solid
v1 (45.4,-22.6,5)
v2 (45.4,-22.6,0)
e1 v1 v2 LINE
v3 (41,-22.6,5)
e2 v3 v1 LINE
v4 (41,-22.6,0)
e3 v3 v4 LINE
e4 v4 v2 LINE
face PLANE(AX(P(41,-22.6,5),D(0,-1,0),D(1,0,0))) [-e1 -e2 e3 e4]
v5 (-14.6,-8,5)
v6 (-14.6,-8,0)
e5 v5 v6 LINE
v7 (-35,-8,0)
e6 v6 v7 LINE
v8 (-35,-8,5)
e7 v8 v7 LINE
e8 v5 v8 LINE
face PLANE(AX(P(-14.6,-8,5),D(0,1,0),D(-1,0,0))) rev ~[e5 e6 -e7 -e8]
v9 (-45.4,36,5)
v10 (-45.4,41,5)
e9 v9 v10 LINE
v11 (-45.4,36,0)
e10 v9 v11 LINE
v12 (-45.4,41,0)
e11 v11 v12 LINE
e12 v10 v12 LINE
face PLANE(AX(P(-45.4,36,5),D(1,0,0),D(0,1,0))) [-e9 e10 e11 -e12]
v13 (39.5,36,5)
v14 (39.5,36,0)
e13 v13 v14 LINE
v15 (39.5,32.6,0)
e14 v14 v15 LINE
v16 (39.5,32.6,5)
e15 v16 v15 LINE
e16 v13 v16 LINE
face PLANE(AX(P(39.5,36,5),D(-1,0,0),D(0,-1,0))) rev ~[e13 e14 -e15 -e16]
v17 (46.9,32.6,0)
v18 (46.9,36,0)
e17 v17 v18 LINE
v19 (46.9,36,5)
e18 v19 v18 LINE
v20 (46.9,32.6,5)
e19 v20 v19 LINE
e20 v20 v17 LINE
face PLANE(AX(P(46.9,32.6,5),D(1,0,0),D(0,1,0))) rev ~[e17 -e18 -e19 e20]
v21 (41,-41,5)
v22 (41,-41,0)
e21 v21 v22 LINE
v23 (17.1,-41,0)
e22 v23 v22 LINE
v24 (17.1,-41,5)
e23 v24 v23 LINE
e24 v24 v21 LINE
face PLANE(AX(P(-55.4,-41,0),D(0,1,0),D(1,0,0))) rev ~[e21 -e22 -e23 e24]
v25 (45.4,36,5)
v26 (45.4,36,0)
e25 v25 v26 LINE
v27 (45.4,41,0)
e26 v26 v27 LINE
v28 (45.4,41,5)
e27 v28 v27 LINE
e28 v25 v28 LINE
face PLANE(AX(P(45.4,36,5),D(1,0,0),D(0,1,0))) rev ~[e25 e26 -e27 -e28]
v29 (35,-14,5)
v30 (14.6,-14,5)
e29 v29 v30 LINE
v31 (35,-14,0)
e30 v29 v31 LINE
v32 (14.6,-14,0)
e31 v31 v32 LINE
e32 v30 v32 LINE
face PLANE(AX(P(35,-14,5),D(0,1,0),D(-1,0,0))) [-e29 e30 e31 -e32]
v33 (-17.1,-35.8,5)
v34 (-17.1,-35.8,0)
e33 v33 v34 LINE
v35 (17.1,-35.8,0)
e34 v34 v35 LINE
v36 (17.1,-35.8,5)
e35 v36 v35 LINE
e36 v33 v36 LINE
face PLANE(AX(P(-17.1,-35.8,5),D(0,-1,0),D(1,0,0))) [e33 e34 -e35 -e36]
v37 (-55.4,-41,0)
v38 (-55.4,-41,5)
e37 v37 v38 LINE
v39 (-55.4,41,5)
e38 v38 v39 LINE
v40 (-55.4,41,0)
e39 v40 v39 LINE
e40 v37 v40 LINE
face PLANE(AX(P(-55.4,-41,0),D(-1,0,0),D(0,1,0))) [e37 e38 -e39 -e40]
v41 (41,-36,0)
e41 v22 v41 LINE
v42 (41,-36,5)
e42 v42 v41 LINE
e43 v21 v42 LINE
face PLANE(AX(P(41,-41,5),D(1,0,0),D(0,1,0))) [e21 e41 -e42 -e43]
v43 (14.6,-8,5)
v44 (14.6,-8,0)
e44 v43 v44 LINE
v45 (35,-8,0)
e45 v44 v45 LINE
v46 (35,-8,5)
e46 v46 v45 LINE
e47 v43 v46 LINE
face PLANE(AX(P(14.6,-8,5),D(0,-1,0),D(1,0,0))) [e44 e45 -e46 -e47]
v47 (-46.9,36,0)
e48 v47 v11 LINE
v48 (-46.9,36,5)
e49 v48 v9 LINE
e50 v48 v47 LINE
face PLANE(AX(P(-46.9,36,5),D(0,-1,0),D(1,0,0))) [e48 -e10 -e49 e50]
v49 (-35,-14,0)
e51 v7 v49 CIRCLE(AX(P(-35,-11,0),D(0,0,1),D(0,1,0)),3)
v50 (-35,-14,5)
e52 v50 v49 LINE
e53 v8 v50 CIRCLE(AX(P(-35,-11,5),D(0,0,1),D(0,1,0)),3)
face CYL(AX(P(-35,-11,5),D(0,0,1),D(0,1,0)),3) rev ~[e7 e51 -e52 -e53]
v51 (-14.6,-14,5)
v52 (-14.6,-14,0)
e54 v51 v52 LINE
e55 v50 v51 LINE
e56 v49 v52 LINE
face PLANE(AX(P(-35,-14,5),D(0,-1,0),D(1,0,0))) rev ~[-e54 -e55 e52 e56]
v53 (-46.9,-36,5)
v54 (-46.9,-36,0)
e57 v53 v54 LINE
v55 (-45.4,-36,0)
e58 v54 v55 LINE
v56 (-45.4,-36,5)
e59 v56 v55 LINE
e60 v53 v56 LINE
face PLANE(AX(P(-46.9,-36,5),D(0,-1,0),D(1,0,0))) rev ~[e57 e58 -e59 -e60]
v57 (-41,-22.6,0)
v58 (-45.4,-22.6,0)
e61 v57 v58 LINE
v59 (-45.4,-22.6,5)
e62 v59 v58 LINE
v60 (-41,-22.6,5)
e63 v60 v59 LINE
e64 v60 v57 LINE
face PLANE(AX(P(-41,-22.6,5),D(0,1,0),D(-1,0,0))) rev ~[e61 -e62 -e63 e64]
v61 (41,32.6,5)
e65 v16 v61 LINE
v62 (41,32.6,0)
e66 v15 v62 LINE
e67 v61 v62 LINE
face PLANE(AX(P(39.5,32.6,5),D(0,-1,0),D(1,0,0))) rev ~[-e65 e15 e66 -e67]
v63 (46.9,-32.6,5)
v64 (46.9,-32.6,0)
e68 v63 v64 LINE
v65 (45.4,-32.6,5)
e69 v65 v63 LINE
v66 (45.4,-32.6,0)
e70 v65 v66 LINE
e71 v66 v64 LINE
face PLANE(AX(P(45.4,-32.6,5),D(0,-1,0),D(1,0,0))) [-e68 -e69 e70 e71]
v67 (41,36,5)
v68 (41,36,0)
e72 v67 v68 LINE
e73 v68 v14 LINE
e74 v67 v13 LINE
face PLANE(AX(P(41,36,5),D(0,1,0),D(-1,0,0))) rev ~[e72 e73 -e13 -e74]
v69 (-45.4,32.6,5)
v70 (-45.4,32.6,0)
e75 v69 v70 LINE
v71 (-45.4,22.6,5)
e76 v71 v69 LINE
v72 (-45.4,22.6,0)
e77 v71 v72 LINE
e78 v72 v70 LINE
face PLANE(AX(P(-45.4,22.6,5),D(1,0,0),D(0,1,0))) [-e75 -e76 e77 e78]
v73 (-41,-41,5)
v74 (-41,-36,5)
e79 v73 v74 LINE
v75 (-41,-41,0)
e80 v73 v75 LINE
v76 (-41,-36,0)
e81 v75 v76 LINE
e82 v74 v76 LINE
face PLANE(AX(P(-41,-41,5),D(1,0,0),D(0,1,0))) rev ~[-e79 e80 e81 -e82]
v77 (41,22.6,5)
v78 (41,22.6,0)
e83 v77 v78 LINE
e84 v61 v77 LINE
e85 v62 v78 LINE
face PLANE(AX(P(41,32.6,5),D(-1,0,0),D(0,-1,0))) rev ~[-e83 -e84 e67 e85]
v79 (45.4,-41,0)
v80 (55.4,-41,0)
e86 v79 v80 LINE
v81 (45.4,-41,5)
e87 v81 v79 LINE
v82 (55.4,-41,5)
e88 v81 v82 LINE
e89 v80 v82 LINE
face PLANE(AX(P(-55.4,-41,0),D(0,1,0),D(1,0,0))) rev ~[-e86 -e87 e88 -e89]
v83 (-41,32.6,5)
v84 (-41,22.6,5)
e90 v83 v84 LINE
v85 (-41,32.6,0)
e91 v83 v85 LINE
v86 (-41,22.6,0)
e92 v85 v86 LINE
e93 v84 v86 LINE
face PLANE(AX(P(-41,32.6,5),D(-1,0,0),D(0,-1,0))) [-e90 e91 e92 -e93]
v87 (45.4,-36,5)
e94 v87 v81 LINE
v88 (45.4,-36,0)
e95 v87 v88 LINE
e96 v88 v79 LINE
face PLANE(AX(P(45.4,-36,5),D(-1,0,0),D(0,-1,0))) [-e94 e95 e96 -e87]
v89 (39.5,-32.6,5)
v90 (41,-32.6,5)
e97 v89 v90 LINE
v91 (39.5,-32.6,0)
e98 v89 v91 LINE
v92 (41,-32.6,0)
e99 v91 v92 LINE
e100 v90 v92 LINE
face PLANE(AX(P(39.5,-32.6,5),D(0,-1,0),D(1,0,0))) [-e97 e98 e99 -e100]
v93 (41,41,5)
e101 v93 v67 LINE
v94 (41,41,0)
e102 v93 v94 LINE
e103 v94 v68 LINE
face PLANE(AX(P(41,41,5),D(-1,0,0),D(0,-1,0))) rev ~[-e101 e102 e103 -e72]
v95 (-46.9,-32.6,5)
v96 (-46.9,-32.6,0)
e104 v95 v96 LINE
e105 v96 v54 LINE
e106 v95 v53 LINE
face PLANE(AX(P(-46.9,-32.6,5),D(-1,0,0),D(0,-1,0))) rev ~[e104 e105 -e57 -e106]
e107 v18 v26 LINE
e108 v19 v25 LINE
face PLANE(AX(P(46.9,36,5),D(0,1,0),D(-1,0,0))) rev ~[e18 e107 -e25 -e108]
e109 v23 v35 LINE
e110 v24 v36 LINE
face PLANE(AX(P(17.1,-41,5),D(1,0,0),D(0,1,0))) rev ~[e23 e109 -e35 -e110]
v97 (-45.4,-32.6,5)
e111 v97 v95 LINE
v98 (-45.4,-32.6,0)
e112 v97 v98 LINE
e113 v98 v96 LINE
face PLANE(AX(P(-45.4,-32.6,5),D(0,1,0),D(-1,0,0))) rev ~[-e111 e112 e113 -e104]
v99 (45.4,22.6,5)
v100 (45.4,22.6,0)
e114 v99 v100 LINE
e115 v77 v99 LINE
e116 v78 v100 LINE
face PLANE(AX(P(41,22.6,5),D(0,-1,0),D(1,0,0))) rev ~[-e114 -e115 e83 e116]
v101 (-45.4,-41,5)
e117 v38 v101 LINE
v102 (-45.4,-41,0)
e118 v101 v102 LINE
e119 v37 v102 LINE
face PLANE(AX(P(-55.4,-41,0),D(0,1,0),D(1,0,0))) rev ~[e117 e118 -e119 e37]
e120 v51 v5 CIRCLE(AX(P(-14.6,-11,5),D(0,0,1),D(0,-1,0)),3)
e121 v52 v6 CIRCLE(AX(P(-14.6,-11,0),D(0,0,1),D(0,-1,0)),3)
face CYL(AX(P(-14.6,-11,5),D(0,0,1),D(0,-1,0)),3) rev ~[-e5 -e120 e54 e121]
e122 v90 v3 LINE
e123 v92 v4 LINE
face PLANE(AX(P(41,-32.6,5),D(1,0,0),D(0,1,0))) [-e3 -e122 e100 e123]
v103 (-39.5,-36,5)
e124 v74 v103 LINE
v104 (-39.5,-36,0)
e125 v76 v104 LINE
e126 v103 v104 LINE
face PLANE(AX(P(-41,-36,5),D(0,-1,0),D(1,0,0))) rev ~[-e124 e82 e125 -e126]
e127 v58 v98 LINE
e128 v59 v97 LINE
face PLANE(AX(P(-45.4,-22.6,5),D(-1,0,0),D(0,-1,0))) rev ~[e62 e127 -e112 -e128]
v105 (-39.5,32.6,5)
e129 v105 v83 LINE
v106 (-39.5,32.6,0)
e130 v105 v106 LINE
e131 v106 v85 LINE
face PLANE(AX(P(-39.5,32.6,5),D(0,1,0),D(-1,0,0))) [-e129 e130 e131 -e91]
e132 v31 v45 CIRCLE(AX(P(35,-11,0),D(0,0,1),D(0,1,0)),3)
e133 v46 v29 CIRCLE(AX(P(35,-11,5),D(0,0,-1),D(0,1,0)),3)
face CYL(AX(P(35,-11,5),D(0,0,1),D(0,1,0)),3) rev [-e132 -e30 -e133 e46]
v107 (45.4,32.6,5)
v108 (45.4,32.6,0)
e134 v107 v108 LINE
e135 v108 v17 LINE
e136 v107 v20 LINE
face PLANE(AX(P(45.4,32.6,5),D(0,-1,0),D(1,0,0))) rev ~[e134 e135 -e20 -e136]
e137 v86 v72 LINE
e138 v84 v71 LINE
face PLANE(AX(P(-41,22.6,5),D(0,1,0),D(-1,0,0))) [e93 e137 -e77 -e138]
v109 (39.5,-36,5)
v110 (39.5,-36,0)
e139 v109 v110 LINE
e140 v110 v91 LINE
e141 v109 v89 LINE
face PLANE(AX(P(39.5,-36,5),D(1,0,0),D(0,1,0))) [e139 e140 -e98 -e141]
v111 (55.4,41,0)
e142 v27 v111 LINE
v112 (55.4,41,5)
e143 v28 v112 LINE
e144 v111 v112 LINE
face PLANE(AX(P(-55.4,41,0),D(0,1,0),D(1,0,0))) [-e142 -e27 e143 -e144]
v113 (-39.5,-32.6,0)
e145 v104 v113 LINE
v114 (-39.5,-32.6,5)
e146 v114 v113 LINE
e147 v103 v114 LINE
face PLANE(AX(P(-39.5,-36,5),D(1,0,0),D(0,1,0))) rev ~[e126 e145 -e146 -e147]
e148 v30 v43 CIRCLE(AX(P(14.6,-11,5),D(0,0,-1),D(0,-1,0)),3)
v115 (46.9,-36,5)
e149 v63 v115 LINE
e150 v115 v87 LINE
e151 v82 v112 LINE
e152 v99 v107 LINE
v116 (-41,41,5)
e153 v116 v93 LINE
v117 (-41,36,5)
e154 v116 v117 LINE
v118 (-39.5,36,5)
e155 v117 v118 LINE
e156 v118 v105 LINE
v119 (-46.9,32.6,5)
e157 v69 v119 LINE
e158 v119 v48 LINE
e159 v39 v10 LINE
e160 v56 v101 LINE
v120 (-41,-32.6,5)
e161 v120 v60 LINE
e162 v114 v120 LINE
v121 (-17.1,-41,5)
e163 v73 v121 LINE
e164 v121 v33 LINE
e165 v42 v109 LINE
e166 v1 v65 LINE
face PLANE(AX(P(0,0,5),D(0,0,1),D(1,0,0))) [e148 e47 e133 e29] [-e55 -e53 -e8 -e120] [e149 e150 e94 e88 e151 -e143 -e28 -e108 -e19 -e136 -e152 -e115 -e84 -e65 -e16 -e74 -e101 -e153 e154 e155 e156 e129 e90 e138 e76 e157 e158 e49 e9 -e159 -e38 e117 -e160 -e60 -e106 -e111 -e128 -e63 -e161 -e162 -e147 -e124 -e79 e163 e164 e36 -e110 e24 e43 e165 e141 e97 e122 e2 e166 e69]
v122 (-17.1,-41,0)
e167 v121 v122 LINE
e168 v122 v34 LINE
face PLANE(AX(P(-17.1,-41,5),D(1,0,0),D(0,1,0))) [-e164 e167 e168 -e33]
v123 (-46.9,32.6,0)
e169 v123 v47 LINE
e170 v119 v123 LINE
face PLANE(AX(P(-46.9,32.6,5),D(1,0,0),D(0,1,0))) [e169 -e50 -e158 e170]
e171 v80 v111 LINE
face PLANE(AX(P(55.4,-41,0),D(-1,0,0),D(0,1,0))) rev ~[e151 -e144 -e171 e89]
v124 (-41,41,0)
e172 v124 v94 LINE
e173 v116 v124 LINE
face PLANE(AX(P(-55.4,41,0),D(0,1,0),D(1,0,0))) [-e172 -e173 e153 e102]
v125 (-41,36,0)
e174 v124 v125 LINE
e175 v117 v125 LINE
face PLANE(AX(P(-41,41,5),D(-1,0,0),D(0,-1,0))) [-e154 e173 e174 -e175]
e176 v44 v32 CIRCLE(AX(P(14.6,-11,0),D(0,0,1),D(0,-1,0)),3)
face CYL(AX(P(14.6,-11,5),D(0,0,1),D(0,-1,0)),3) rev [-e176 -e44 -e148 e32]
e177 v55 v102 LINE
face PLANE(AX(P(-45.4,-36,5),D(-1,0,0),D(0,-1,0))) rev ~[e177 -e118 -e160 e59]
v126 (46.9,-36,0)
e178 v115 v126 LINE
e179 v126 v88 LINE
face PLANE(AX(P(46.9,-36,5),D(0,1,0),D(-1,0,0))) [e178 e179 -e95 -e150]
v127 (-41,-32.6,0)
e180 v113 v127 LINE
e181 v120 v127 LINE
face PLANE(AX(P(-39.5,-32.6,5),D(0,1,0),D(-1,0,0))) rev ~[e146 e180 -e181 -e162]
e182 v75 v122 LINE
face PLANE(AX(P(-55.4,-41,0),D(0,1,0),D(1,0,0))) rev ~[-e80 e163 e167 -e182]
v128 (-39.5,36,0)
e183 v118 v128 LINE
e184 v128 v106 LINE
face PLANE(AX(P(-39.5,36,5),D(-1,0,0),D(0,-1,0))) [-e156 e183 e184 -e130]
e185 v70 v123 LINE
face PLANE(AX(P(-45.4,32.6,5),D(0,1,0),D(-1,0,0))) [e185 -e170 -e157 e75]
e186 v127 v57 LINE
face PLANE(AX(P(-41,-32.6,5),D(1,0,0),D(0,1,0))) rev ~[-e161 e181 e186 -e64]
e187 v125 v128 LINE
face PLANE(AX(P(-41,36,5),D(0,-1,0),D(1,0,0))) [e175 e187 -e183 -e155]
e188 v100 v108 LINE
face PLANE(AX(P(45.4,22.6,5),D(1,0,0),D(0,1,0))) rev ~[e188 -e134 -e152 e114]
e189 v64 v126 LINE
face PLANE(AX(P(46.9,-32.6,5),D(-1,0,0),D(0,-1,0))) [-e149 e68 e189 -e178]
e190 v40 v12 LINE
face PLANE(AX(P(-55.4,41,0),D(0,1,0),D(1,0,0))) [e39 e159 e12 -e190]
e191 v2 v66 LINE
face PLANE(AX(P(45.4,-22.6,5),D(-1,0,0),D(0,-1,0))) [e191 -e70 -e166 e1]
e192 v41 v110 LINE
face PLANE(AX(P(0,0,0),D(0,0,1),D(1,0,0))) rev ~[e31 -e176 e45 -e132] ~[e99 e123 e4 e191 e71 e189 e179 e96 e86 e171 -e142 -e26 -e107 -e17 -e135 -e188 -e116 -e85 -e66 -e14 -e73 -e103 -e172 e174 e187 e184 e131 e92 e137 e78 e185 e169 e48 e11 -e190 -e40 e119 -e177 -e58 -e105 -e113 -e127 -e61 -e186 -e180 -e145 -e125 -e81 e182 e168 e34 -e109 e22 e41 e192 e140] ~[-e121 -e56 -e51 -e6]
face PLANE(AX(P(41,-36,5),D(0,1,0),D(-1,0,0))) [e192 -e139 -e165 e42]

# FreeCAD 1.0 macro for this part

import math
import FreeCAD as App
import Part
import Sketcher
Q = App.Units.Quantity


def add_polygon(sketch, points):
    """Adds a closed chain of lines whose ends are joined by coincident constraints."""
    first, n = sketch.GeometryCount, len(points)
    for a, b in zip(points, points[1:] + points[:1]):
        sketch.addGeometry(Part.LineSegment(App.Vector(*a, 0), App.Vector(*b, 0)), False)
    for i in range(n):
        sketch.addConstraint(Sketcher.Constraint("Coincident", first + i, 2, first + (i + 1) % n, 1))

doc = App.newDocument("Part")
body = doc.addObject("PartDesign::Body", "Body")

# Sketch on XY plane
sketch1 = body.newObject("Sketcher::SketchObject", "Sketch")
sketch1.AttachmentSupport = (doc.getObject("XY_Plane"), [""])
sketch1.MapMode = "FlatFace"
add_polygon(sketch1, [(-55, 41), (-55, -41), (55, -41), (55, 41)])  # lines 0-3
sketch1.addConstraint(Sketcher.Constraint("Vertical", 0))
sketch1.addConstraint(Sketcher.Constraint("Horizontal", 1))
sketch1.addConstraint(Sketcher.Constraint("Vertical", 2))
sketch1.addConstraint(Sketcher.Constraint("Horizontal", 3))
sketch1.addConstraint(Sketcher.Constraint("Symmetric", 0, 2, 2, 2, -1, 1))
sketch1.addConstraint(Sketcher.Constraint("DistanceY", 0, 2, 0, 1, Q("82 mm")))
sketch1.addConstraint(Sketcher.Constraint("DistanceX", 1, 1, 1, 2, Q("110.8 mm")))
pad1 = body.newObject("PartDesign::Pad", "Pad")
pad1.Profile = sketch1
pad1.Length = 5

# Sketch on XY plane
sketch2 = body.newObject("Sketcher::SketchObject", "Sketch001")
sketch2.AttachmentSupport = (doc.getObject("XY_Plane"), [""])
sketch2.MapMode = "FlatFace"
sketch2.AttachmentOffset = App.Placement(App.Vector(0, 0, 5), App.Rotation())
add_polygon(sketch2, [(41, -22.6), (41, -32.6), (39.5, -32.6), (39.5, -36), (41, -36), (41, -41), (45.4, -41), (45.4, -36), (46.9, -36), (46.9, -32.6), (45.4, -32.6), (45.4, -22.6)])  # lines 0-11
add_polygon(sketch2, [(-41, 22.6), (-41, 32.6), (-39.5, 32.6), (-39.5, 36), (-41, 36), (-41, 41), (-45.4, 41), (-45.4, 36), (-46.9, 36), (-46.9, 32.6), (-45.4, 32.6), (-45.4, 22.6)])  # lines 12-23
add_polygon(sketch2, [(45.4, 22.6), (45.4, 32.6), (46.9, 32.6), (46.9, 36), (45.4, 36), (45.4, 41), (41, 41), (41, 36), (39.5, 36), (39.5, 32.6), (41, 32.6), (41, 22.6)])  # lines 24-35
add_polygon(sketch2, [(-45.4, -22.6), (-45.4, -32.6), (-46.9, -32.6), (-46.9, -36), (-45.4, -36), (-45.4, -41), (-41, -41), (-41, -36), (-39.5, -36), (-39.5, -32.6), (-41, -32.6), (-41, -22.6)])  # lines 36-47
sketch2.addConstraint(Sketcher.Constraint("Vertical", 0))
sketch2.addConstraint(Sketcher.Constraint("Horizontal", 1))
sketch2.addConstraint(Sketcher.Constraint("Vertical", 2))
sketch2.addConstraint(Sketcher.Constraint("Horizontal", 3))
sketch2.addConstraint(Sketcher.Constraint("Vertical", 4))
sketch2.addConstraint(Sketcher.Constraint("Horizontal", 5))
sketch2.addConstraint(Sketcher.Constraint("Vertical", 6))
sketch2.addConstraint(Sketcher.Constraint("Horizontal", 7))
sketch2.addConstraint(Sketcher.Constraint("Vertical", 8))
sketch2.addConstraint(Sketcher.Constraint("Horizontal", 9))
sketch2.addConstraint(Sketcher.Constraint("Vertical", 10))
sketch2.addConstraint(Sketcher.Constraint("Horizontal", 11))
sketch2.addConstraint(Sketcher.Constraint("Vertical", 12))
sketch2.addConstraint(Sketcher.Constraint("Horizontal", 13))
sketch2.addConstraint(Sketcher.Constraint("Vertical", 14))
sketch2.addConstraint(Sketcher.Constraint("Horizontal", 15))
sketch2.addConstraint(Sketcher.Constraint("Vertical", 16))
sketch2.addConstraint(Sketcher.Constraint("Horizontal", 17))
sketch2.addConstraint(Sketcher.Constraint("Vertical", 18))
sketch2.addConstraint(Sketcher.Constraint("Horizontal", 19))
sketch2.addConstraint(Sketcher.Constraint("Vertical", 20))
sketch2.addConstraint(Sketcher.Constraint("Horizontal", 21))
sketch2.addConstraint(Sketcher.Constraint("Vertical", 22))
sketch2.addConstraint(Sketcher.Constraint("Horizontal", 23))
sketch2.addConstraint(Sketcher.Constraint("Vertical", 24))
sketch2.addConstraint(Sketcher.Constraint("Horizontal", 25))
sketch2.addConstraint(Sketcher.Constraint("Vertical", 26))
sketch2.addConstraint(Sketcher.Constraint("Horizontal", 27))
sketch2.addConstraint(Sketcher.Constraint("Vertical", 28))
sketch2.addConstraint(Sketcher.Constraint("Horizontal", 29))
sketch2.addConstraint(Sketcher.Constraint("Vertical", 30))
sketch2.addConstraint(Sketcher.Constraint("Horizontal", 31))
sketch2.addConstraint(Sketcher.Constraint("Vertical", 32))
sketch2.addConstraint(Sketcher.Constraint("Horizontal", 33))
sketch2.addConstraint(Sketcher.Constraint("Vertical", 34))
sketch2.addConstraint(Sketcher.Constraint("Horizontal", 35))
sketch2.addConstraint(Sketcher.Constraint("Vertical", 36))
sketch2.addConstraint(Sketcher.Constraint("Horizontal", 37))
sketch2.addConstraint(Sketcher.Constraint("Vertical", 38))
sketch2.addConstraint(Sketcher.Constraint("Horizontal", 39))
sketch2.addConstraint(Sketcher.Constraint("Vertical", 40))
sketch2.addConstraint(Sketcher.Constraint("Horizontal", 41))
sketch2.addConstraint(Sketcher.Constraint("Vertical", 42))
sketch2.addConstraint(Sketcher.Constraint("Horizontal", 43))
sketch2.addConstraint(Sketcher.Constraint("Vertical", 44))
sketch2.addConstraint(Sketcher.Constraint("Horizontal", 45))
sketch2.addConstraint(Sketcher.Constraint("Vertical", 46))
sketch2.addConstraint(Sketcher.Constraint("Horizontal", 47))
sketch2.addConstraint(Sketcher.Constraint("Symmetric", 0, 2, 12, 2, -1, 1))
sketch2.addConstraint(Sketcher.Constraint("Symmetric", 2, 2, 14, 2, -1, 1))
sketch2.addConstraint(Sketcher.Constraint("Symmetric", 4, 2, 16, 2, -1, 1))
sketch2.addConstraint(Sketcher.Constraint("Symmetric", 6, 2, 18, 2, -1, 1))
sketch2.addConstraint(Sketcher.Constraint("Symmetric", 8, 2, 20, 2, -1, 1))
sketch2.addConstraint(Sketcher.Constraint("Symmetric", 10, 2, 22, 2, -1, 1))
sketch2.addConstraint(Sketcher.Constraint("Symmetric", 24, 2, 36, 2, -1, 1))
sketch2.addConstraint(Sketcher.Constraint("Symmetric", 26, 2, 38, 2, -1, 1))
sketch2.addConstraint(Sketcher.Constraint("Symmetric", 28, 2, 40, 2, -1, 1))
sketch2.addConstraint(Sketcher.Constraint("Symmetric", 30, 2, 42, 2, -1, 1))
sketch2.addConstraint(Sketcher.Constraint("Symmetric", 32, 2, 44, 2, -1, 1))
sketch2.addConstraint(Sketcher.Constraint("Symmetric", 34, 2, 46, 2, -1, 1))
sketch2.addConstraint(Sketcher.Constraint("Symmetric", 21, 2, 24, 2, -2))
sketch2.addConstraint(Sketcher.Constraint("Symmetric", 19, 2, 26, 2, -2))
sketch2.addConstraint(Sketcher.Constraint("Symmetric", 17, 2, 28, 2, -2))
sketch2.addConstraint(Sketcher.Constraint("Symmetric", 15, 2, 30, 2, -2))
sketch2.addConstraint(Sketcher.Constraint("Symmetric", 13, 2, 32, 2, -2))
sketch2.addConstraint(Sketcher.Constraint("Symmetric", 23, 2, 34, 2, -2))
sketch2.addConstraint(Sketcher.Constraint("Horizontal", 3, 2, 6, 2))
sketch2.addConstraint(Sketcher.Constraint("Horizontal", 1, 2, 8, 2))
sketch2.addConstraint(Sketcher.Constraint("Vertical", 0, 2, 3, 2))
sketch2.addConstraint(Sketcher.Constraint("Vertical", 6, 2, 9, 2))
sketch2.addConstraint(Sketcher.Constraint("Equal", 3, 7))
sketch2.addConstraint(Sketcher.Constraint("DistanceY", 0, 2, 0, 1, Q("10 mm")))
sketch2.addConstraint(Sketcher.Constraint("DistanceY", 4, 2, 4, 1, Q("5 mm")))
sketch2.addConstraint(Sketcher.Constraint("DistanceX", 1, 2, 1, 1, Q("1.5 mm")))
sketch2.addConstraint(Sketcher.Constraint("DistanceX", 5, 1, 5, 2, Q("4.4 mm")))
sketch2.addConstraint(Sketcher.Constraint("DistanceY", 2, 2, 2, 1, Q("3.4 mm")))
sketch2.addConstraint(Sketcher.Constraint("DistanceX", -1, 1, 0, 2, Q("41 mm")))
sketch2.addConstraint(Sketcher.Constraint("DistanceY", 2, 2, -1, 1, Q("36 mm")))
pocket1 = body.newObject("PartDesign::Pocket", "Pocket")
pocket1.Profile = sketch2
pocket1.Length = 10

# Sketch on XY plane
sketch3 = body.newObject("Sketcher::SketchObject", "Sketch002")
sketch3.AttachmentSupport = (doc.getObject("XY_Plane"), [""])
sketch3.MapMode = "FlatFace"
sketch3.AttachmentOffset = App.Placement(App.Vector(0, 0, 5), App.Rotation())
add_polygon(sketch3, [(-17, -36), (-17, -41), (17, -41), (17, -36)])  # lines 0-3
sketch3.addConstraint(Sketcher.Constraint("Vertical", 0))
sketch3.addConstraint(Sketcher.Constraint("Horizontal", 1))
sketch3.addConstraint(Sketcher.Constraint("Vertical", 2))
sketch3.addConstraint(Sketcher.Constraint("Horizontal", 3))
sketch3.addConstraint(Sketcher.Constraint("DistanceX", 1, 1, 1, 2, Q("34.2 mm")))
sketch3.addConstraint(Sketcher.Constraint("DistanceY", 0, 2, 0, 1, Q("5.2 mm")))
sketch3.addConstraint(Sketcher.Constraint("DistanceY", 0, 2, -1, 1, Q("41 mm")))
sketch3.addConstraint(Sketcher.Constraint("DistanceX", 0, 2, -1, 1, Q("17.1 mm")))
pocket2 = body.newObject("PartDesign::Pocket", "Pocket001")
pocket2.Profile = sketch3
pocket2.Length = 10

# Sketch on XY plane
sketch4 = body.newObject("Sketcher::SketchObject", "Sketch003")
sketch4.AttachmentSupport = (doc.getObject("XY_Plane"), [""])
sketch4.MapMode = "FlatFace"
sketch4.AttachmentOffset = App.Placement(App.Vector(0, 0, 5), App.Rotation())
sketch4.addGeometry(Part.LineSegment(App.Vector(14.6, -14, 0), App.Vector(35, -14, 0)), False)
sketch4.addGeometry(Part.ArcOfCircle(Part.Circle(App.Vector(35, -11, 0), App.Vector(0, 0, 1), 3), math.radians(-90), math.radians(90)), False)
sketch4.addGeometry(Part.LineSegment(App.Vector(35, -8, 0), App.Vector(14.6, -8, 0)), False)
sketch4.addGeometry(Part.ArcOfCircle(Part.Circle(App.Vector(14.6, -11, 0), App.Vector(0, 0, 1), 3), math.radians(90), math.radians(270)), False)
sketch4.addGeometry(Part.LineSegment(App.Vector(-14.6, -8, 0), App.Vector(-35, -8, 0)), False)
sketch4.addGeometry(Part.ArcOfCircle(Part.Circle(App.Vector(-35, -11, 0), App.Vector(0, 0, 1), 3), math.radians(90), math.radians(270)), False)
sketch4.addGeometry(Part.LineSegment(App.Vector(-35, -14, 0), App.Vector(-14.6, -14, 0)), False)
sketch4.addGeometry(Part.ArcOfCircle(Part.Circle(App.Vector(-14.6, -11, 0), App.Vector(0, 0, 1), 3), math.radians(-90), math.radians(90)), False)
sketch4.addConstraint(Sketcher.Constraint("Tangent", 0, 2, 1, 1))
sketch4.addConstraint(Sketcher.Constraint("Tangent", 1, 2, 2, 1))
sketch4.addConstraint(Sketcher.Constraint("Tangent", 2, 2, 3, 1))
sketch4.addConstraint(Sketcher.Constraint("Tangent", 3, 2, 0, 1))
sketch4.addConstraint(Sketcher.Constraint("Tangent", 4, 2, 5, 1))
sketch4.addConstraint(Sketcher.Constraint("Tangent", 5, 2, 6, 1))
sketch4.addConstraint(Sketcher.Constraint("Tangent", 6, 2, 7, 1))
sketch4.addConstraint(Sketcher.Constraint("Tangent", 7, 2, 4, 1))
sketch4.addConstraint(Sketcher.Constraint("Horizontal", 0))
sketch4.addConstraint(Sketcher.Constraint("Horizontal", 2))
sketch4.addConstraint(Sketcher.Constraint("Horizontal", 4))
sketch4.addConstraint(Sketcher.Constraint("Horizontal", 6))
sketch4.addConstraint(Sketcher.Constraint("Equal", 3, 5))
sketch4.addConstraint(Sketcher.Constraint("Symmetric", 1, 3, 5, 3, -2))
sketch4.addConstraint(Sketcher.Constraint("Equal", 2, 4))
sketch4.addConstraint(Sketcher.Constraint("Radius", 1, Q("3 mm")))
sketch4.addConstraint(Sketcher.Constraint("DistanceX", 0, 1, 0, 2, Q("20.4 mm")))
sketch4.addConstraint(Sketcher.Constraint("DistanceX", -1, 1, 1, 3, Q("35 mm")))
sketch4.addConstraint(Sketcher.Constraint("DistanceY", 1, 3, -1, 1, Q("11 mm")))
pocket3 = body.newObject("PartDesign::Pocket", "Pocket002")
pocket3.Profile = sketch4
pocket3.Length = 10

doc.recompute()
